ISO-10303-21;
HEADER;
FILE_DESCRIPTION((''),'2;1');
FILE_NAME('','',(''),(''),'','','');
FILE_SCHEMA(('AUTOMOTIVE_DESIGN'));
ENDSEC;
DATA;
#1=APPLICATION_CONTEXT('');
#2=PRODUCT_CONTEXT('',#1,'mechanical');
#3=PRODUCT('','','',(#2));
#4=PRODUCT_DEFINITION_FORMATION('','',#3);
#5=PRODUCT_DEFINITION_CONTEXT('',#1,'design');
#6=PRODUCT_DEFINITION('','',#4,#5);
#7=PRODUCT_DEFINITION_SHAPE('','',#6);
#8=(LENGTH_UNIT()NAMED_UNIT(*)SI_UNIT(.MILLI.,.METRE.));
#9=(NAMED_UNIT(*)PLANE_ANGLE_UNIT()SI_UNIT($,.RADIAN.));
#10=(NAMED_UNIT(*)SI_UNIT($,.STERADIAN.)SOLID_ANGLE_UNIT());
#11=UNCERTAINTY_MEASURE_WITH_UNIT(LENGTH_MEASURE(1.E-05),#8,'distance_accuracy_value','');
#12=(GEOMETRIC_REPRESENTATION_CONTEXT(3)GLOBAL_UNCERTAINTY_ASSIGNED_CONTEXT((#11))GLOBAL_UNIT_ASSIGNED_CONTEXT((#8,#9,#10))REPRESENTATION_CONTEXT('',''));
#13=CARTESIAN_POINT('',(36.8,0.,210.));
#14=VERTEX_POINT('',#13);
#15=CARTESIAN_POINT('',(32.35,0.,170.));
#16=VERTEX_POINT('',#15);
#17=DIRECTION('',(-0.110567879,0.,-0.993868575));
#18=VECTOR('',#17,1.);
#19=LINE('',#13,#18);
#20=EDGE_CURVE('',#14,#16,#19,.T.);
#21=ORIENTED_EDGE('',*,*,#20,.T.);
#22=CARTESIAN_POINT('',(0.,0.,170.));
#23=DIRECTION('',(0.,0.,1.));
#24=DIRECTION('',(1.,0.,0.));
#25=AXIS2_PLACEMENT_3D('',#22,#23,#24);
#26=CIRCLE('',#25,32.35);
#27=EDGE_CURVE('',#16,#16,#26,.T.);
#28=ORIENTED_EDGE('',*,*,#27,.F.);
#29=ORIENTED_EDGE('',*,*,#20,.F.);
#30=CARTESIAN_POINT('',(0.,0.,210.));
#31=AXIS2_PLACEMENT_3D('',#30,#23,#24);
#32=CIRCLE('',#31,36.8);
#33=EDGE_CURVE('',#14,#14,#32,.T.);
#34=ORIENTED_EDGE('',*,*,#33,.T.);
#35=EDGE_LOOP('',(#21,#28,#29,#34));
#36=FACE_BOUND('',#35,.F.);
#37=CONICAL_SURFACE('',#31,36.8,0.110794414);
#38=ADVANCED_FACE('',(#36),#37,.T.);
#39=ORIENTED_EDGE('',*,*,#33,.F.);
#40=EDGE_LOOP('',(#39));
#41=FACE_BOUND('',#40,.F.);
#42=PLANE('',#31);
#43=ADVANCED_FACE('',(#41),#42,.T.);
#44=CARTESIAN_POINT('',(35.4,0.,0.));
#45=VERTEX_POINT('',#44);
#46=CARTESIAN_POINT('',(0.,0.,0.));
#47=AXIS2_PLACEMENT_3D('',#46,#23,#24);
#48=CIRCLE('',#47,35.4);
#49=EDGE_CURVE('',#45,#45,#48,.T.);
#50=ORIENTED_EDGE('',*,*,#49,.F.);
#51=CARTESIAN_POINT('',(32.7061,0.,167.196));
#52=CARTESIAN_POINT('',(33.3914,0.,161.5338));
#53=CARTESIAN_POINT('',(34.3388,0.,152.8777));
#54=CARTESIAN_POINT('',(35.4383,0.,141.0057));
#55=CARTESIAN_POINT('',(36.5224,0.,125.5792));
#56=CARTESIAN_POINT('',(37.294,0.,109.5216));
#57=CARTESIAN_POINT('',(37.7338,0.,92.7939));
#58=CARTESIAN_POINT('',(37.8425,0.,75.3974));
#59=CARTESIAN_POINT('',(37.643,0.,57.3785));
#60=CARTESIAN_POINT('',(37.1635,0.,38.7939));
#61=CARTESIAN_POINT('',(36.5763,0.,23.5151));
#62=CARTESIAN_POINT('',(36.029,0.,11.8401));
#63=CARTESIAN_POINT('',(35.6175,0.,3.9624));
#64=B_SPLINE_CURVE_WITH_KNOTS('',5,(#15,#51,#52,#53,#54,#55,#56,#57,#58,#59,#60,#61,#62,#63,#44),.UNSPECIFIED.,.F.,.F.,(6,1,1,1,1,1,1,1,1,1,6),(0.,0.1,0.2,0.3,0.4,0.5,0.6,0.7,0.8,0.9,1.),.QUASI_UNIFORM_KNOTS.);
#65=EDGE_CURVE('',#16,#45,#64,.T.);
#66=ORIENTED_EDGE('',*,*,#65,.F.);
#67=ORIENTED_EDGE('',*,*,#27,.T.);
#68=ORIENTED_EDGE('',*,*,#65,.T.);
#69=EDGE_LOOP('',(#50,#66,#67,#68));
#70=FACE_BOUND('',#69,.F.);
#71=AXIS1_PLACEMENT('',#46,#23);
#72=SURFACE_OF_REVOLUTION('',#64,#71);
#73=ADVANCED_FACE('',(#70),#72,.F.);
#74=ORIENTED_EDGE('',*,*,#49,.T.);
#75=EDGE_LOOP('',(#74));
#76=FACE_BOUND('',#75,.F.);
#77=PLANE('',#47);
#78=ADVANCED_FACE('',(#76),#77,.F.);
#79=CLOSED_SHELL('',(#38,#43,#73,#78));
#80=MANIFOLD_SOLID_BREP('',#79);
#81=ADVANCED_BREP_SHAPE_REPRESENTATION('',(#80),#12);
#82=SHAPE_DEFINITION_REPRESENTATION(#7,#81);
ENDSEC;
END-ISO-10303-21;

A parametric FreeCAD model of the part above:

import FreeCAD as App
import Part
import Sketcher
Q = App.Units.Quantity

doc = App.newDocument("Part")
body = doc.addObject("PartDesign::Body", "Body")

sketch1 = body.newObject("Sketcher::SketchObject", "Sketch")
sketch1.AttachmentSupport = (doc.getObject("XZ_Plane"), [""])
sketch1.MapMode = "FlatFace"
sketch1.addGeometry([
    Part.LineSegment(App.Vector(35.4, 0, 0), App.Vector(0, 0, 0)),
    Part.LineSegment(App.Vector(0, 0, 0), App.Vector(0, 210, 0)),
    Part.LineSegment(App.Vector(0, 210, 0), App.Vector(36.8, 210, 0)),
    Part.LineSegment(App.Vector(36.8, 210, 0), App.Vector(32.35, 170, 0)),
    Part.BSplineCurve([App.Vector(32.35, 170, 0), App.Vector(32.7061, 167.196, 0), App.Vector(33.3914, 161.5338, 0), App.Vector(34.3388, 152.8777, 0), App.Vector(35.4383, 141.0057, 0), App.Vector(36.5224, 125.5792, 0), App.Vector(37.294, 109.5216, 0), App.Vector(37.7338, 92.7939, 0), App.Vector(37.8425, 75.3974, 0), App.Vector(37.643, 57.3785, 0), App.Vector(37.1635, 38.7939, 0), App.Vector(36.5763, 23.5151, 0), App.Vector(36.029, 11.8401, 0), App.Vector(35.6175, 3.9624, 0), App.Vector(35.4, 0, 0)], [6, 1, 1, 1, 1, 1, 1, 1, 1, 1, 6], [0, 0.1, 0.2, 0.3, 0.4, 0.5, 0.6, 0.7, 0.8, 0.9, 1], False, 5, [1, 1, 1, 1, 1, 1, 1, 1, 1, 1, 1, 1, 1, 1, 1], False),
], False)
sketch1.addConstraint([
    Sketcher.Constraint("Block", 4),
    Sketcher.Constraint("Coincident", 0, 2, 1, 1),
    Sketcher.Constraint("Coincident", 1, 2, 2, 1),
    Sketcher.Constraint("Coincident", 2, 2, 3, 1),
    Sketcher.Constraint("Coincident", 3, 2, 4, 1),
    Sketcher.Constraint("Coincident", 4, 2, 0, 1),
    Sketcher.Constraint("Horizontal", 0),
    Sketcher.Constraint("Vertical", 1),
    Sketcher.Constraint("Horizontal", 2),
    Sketcher.Constraint("PointOnObject", 1, 2, -2),
    Sketcher.Constraint("DistanceY", 1, 1, 1, 2, Q("210 mm")),
    Sketcher.Constraint("DistanceX", 2, 1, 2, 2, Q("36.8 mm")),
])
revolution = body.newObject("PartDesign::Revolution", "Revolution")
revolution.Profile = sketch1
revolution.ReferenceAxis = (sketch1, ["V_Axis"])
revolution.Angle = 360

doc.recompute()
